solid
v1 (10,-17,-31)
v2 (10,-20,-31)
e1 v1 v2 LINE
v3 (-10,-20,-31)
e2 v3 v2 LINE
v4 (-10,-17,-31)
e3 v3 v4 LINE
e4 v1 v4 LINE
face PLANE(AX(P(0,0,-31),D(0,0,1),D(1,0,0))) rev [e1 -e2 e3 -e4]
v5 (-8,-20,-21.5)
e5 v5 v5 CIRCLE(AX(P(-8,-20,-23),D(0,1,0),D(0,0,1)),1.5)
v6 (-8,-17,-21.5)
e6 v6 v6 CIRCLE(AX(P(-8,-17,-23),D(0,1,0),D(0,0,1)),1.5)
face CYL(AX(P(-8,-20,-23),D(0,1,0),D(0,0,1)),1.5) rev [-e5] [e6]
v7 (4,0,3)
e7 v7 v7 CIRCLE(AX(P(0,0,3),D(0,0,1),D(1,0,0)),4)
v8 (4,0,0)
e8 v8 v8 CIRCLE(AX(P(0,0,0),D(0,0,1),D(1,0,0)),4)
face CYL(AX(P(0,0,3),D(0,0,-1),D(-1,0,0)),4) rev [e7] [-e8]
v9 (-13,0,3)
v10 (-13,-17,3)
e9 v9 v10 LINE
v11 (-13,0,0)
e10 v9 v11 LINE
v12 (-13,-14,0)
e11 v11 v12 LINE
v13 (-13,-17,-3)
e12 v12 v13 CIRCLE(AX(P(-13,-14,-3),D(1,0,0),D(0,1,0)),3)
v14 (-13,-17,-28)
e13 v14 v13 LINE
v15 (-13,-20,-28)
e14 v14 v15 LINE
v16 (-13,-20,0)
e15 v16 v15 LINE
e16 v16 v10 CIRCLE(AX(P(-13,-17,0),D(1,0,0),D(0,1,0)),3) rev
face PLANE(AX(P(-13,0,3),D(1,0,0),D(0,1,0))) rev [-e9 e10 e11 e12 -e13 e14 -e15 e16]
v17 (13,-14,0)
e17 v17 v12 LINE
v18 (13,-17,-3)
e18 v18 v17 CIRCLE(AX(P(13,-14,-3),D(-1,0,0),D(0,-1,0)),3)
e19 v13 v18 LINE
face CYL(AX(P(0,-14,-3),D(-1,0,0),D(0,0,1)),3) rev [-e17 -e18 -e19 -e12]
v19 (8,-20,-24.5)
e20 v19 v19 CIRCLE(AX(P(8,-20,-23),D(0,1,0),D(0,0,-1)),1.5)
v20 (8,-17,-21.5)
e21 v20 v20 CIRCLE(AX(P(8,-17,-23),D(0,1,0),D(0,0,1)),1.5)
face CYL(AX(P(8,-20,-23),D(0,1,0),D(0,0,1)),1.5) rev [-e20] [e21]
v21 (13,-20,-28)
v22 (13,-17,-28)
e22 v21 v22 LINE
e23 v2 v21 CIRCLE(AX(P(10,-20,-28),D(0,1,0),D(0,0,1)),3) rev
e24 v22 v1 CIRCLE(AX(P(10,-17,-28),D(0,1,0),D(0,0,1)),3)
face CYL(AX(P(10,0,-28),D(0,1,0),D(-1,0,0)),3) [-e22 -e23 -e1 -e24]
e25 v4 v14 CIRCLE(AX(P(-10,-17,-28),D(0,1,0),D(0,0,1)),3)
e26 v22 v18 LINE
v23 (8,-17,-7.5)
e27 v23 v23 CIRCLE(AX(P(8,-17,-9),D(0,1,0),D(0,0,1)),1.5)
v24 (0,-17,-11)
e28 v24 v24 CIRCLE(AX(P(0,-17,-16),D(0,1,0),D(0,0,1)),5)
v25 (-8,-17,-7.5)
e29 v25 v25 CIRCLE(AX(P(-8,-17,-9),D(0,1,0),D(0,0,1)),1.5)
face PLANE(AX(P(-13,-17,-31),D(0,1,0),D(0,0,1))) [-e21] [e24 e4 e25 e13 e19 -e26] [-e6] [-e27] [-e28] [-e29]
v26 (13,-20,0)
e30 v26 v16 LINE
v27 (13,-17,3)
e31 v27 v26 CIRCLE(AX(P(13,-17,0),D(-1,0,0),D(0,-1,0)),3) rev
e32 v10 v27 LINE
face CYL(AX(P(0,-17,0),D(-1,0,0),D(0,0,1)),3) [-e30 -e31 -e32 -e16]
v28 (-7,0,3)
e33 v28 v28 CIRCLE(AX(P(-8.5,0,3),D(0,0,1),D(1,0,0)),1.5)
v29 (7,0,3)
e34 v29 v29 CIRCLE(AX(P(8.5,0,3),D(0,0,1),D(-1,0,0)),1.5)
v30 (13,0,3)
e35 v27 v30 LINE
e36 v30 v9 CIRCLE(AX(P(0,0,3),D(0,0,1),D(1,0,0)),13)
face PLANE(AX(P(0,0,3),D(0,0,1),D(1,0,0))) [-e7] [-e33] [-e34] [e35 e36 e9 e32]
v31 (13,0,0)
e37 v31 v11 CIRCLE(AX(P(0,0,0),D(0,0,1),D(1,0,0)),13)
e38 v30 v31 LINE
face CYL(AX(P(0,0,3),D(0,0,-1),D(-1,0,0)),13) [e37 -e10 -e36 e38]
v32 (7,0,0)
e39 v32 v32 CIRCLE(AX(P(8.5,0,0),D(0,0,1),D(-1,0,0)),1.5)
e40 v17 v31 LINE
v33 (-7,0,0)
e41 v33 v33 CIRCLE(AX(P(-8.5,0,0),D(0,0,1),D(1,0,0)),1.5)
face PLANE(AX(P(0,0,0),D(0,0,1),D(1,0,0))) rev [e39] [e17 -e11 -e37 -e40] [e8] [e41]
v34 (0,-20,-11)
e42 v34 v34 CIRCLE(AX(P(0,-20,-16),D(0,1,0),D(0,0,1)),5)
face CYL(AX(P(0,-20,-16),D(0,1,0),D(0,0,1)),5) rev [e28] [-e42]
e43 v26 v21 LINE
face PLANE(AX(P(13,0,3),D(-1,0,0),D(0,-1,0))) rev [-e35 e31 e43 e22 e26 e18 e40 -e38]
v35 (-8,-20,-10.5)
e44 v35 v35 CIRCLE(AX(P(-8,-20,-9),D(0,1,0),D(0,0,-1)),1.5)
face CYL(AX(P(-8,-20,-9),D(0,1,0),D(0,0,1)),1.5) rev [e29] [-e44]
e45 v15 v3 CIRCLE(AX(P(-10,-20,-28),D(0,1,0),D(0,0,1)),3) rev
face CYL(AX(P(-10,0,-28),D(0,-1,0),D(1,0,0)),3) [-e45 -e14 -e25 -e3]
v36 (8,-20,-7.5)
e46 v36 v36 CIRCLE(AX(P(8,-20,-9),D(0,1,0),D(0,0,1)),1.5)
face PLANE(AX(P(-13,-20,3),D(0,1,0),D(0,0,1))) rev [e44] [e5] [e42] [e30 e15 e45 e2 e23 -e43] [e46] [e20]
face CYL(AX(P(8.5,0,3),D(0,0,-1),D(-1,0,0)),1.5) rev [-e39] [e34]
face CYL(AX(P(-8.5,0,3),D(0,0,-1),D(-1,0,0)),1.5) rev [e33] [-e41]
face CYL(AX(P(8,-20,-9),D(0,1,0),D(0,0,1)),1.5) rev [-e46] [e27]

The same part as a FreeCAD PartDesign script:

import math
import FreeCAD as App
import Part
import Sketcher
from FreeCAD import Vector
Q = App.Units.Quantity


def edges_at(feature, points):
    """Names of the edges that pass closest to the given points."""
    edges = feature.Shape.Edges
    near = lambda p: min(range(len(edges)), key=lambda i: edges[i].distToShape(Part.Vertex(*p))[0])
    return sorted({f"Edge{near(p) + 1}" for p in points})


def add_polygon(sketch, points):
    """Adds a closed chain of lines whose ends are joined by coincident constraints."""
    first, n = sketch.GeometryCount, len(points)
    for a, b in zip(points, points[1:] + points[:1]):
        sketch.addGeometry(Part.LineSegment(App.Vector(*a, 0), App.Vector(*b, 0)), False)
    for i in range(n):
        sketch.addConstraint(Sketcher.Constraint("Coincident", first + i, 2, first + (i + 1) % n, 1))

doc = App.newDocument("Part")
body = doc.addObject("PartDesign::Body", "Body")

sketch1 = doc.addObject("Sketcher::SketchObject", "Sketch")
body.addObject(sketch1)
sketch1.AttachmentSupport = (doc.XY_Plane, [""])
sketch1.MapMode = "FlatFace"
sketch1.addGeometry([
    Part.LineSegment(Vector(-13, 0, 0), Vector(-13, -20, 0)),
    Part.LineSegment(Vector(-13, -20, 0), Vector(13, -20, 0)),
    Part.LineSegment(Vector(13, -20, 0), Vector(13, 0, 0)),
    Part.ArcOfCircle(Part.Circle(Vector(0, 0, 0), Vector(0, 0, 1), 13), math.radians(0), math.radians(180)),
    Part.Circle(Vector(-8.5, 0, 0), Vector(0, 0, 1), 1.5),
    Part.Circle(Vector(0, 0, 0), Vector(0, 0, 1), 4),
    Part.Circle(Vector(8.5, 0, 0), Vector(0, 0, 1), 1.5),
], False)
sketch1.addConstraint([
    Sketcher.Constraint("Coincident", 0, 2, 1, 1),
    Sketcher.Constraint("Coincident", 1, 2, 2, 1),
    Sketcher.Constraint("Tangent", 2, 2, 3, 1),
    Sketcher.Constraint("Tangent", 3, 2, 0, 1),
    Sketcher.Constraint("Vertical", 0),
    Sketcher.Constraint("Horizontal", 1),
    Sketcher.Constraint("Vertical", 2),
    Sketcher.Constraint("Coincident", 3, 3, -1, 1),
    Sketcher.Constraint("Coincident", 5, 3, -1, 1),
    Sketcher.Constraint("Equal", 4, 6),
    Sketcher.Constraint("Symmetric", 4, 3, 6, 3, -1, 1),
    Sketcher.Constraint("PointOnObject", 4, 3, -1),
    Sketcher.Constraint("Diameter", 4, Q("3 mm")),
    Sketcher.Constraint("Diameter", 5, Q("8 mm")),
    Sketcher.Constraint("Radius", 3, Q("13 mm")),
    Sketcher.Constraint("DistanceY", 0, 2, 0, 1, Q("20 mm")),
    Sketcher.Constraint("DistanceX", 4, 3, 6, 3, Q("17 mm")),
])
pad1 = doc.addObject("PartDesign::Pad", "Pad")
body.addObject(pad1)
pad1.Profile = sketch1
pad1.Length = 3

sketch2 = doc.addObject("Sketcher::SketchObject", "Sketch001")
body.addObject(sketch2)
sketch2.AttachmentSupport = (doc.XY_Plane, [""])
sketch2.MapMode = "FlatFace"
add_polygon(sketch2, [(-13, -17), (-13, -20), (13, -20), (13, -17)])
sketch2.addConstraint([
    Sketcher.Constraint("Vertical", 0),
    Sketcher.Constraint("Horizontal", 1),
    Sketcher.Constraint("Vertical", 2),
    Sketcher.Constraint("Horizontal", 3),
    Sketcher.Constraint("DistanceX", 1, 1, 1, 2, Q("26 mm")),
    Sketcher.Constraint("DistanceY", 0, 2, 0, 1, Q("3 mm")),
    Sketcher.Constraint("DistanceX", 0, 2, -1, 1, Q("13 mm")),
    Sketcher.Constraint("DistanceY", 0, 2, -1, 1, Q("20 mm")),
])
pad2 = doc.addObject("PartDesign::Pad", "Pad001")
body.addObject(pad2)
pad2.Profile = sketch2
pad2.Length = 31
pad2.Reversed = True

sketch3 = doc.addObject("Sketcher::SketchObject", "Sketch002")
body.addObject(sketch3)
sketch3.AttachmentSupport = (doc.XZ_Plane, [""])
sketch3.MapMode = "FlatFace"
sketch3.addGeometry([
    Part.Circle(Vector(0, -16, 0), Vector(0, 0, 1), 5),
    Part.Circle(Vector(-8, -23, 0), Vector(0, 0, 1), 1.5),
    Part.Circle(Vector(8, -23, 0), Vector(0, 0, 1), 1.5),
    Part.Circle(Vector(8, -9, 0), Vector(0, 0, 1), 1.5),
    Part.Circle(Vector(-8, -9, 0), Vector(0, 0, 1), 1.5),
], False)
sketch3.addConstraint([
    Sketcher.Constraint("Equal", 1, 2),
    Sketcher.Constraint("Equal", 2, 3),
    Sketcher.Constraint("Equal", 3, 4),
    Sketcher.Constraint("Symmetric", 1, 3, 2, 3, -2),
    Sketcher.Constraint("Symmetric", 3, 3, 4, 3, -2),
    Sketcher.Constraint("PointOnObject", 0, 3, -2),
    Sketcher.Constraint("Vertical", 2, 3, 3, 3),
    Sketcher.Constraint("Diameter", 0, Q("10 mm")),
    Sketcher.Constraint("Diameter", 1, Q("3 mm")),
    Sketcher.Constraint("DistanceY", 0, 3, -1, 1, Q("16 mm")),
    Sketcher.Constraint("DistanceX", 1, 3, -1, 1, Q("8 mm")),
    Sketcher.Constraint("DistanceY", 1, 3, -1, 1, Q("23 mm")),
    Sketcher.Constraint("DistanceY", 3, 3, -1, 1, Q("9 mm")),
])
pocket1 = doc.addObject("PartDesign::Pocket", "Pocket")
body.addObject(pocket1)
pocket1.Profile = sketch3
pocket1.Type = "ThroughAll"
pocket1.Reversed = True
doc.recompute()

fillet = doc.addObject("PartDesign::Fillet", "Fillet")
body.addObject(fillet)
fillet.Base = (pocket1, edges_at(pocket1, [
    (0, -20, 3),
    (-13, -18.5, -31),
    (13, -18.5, -31),
    (0, -17, 0),
]))
fillet.Radius = 3

doc.recompute()
